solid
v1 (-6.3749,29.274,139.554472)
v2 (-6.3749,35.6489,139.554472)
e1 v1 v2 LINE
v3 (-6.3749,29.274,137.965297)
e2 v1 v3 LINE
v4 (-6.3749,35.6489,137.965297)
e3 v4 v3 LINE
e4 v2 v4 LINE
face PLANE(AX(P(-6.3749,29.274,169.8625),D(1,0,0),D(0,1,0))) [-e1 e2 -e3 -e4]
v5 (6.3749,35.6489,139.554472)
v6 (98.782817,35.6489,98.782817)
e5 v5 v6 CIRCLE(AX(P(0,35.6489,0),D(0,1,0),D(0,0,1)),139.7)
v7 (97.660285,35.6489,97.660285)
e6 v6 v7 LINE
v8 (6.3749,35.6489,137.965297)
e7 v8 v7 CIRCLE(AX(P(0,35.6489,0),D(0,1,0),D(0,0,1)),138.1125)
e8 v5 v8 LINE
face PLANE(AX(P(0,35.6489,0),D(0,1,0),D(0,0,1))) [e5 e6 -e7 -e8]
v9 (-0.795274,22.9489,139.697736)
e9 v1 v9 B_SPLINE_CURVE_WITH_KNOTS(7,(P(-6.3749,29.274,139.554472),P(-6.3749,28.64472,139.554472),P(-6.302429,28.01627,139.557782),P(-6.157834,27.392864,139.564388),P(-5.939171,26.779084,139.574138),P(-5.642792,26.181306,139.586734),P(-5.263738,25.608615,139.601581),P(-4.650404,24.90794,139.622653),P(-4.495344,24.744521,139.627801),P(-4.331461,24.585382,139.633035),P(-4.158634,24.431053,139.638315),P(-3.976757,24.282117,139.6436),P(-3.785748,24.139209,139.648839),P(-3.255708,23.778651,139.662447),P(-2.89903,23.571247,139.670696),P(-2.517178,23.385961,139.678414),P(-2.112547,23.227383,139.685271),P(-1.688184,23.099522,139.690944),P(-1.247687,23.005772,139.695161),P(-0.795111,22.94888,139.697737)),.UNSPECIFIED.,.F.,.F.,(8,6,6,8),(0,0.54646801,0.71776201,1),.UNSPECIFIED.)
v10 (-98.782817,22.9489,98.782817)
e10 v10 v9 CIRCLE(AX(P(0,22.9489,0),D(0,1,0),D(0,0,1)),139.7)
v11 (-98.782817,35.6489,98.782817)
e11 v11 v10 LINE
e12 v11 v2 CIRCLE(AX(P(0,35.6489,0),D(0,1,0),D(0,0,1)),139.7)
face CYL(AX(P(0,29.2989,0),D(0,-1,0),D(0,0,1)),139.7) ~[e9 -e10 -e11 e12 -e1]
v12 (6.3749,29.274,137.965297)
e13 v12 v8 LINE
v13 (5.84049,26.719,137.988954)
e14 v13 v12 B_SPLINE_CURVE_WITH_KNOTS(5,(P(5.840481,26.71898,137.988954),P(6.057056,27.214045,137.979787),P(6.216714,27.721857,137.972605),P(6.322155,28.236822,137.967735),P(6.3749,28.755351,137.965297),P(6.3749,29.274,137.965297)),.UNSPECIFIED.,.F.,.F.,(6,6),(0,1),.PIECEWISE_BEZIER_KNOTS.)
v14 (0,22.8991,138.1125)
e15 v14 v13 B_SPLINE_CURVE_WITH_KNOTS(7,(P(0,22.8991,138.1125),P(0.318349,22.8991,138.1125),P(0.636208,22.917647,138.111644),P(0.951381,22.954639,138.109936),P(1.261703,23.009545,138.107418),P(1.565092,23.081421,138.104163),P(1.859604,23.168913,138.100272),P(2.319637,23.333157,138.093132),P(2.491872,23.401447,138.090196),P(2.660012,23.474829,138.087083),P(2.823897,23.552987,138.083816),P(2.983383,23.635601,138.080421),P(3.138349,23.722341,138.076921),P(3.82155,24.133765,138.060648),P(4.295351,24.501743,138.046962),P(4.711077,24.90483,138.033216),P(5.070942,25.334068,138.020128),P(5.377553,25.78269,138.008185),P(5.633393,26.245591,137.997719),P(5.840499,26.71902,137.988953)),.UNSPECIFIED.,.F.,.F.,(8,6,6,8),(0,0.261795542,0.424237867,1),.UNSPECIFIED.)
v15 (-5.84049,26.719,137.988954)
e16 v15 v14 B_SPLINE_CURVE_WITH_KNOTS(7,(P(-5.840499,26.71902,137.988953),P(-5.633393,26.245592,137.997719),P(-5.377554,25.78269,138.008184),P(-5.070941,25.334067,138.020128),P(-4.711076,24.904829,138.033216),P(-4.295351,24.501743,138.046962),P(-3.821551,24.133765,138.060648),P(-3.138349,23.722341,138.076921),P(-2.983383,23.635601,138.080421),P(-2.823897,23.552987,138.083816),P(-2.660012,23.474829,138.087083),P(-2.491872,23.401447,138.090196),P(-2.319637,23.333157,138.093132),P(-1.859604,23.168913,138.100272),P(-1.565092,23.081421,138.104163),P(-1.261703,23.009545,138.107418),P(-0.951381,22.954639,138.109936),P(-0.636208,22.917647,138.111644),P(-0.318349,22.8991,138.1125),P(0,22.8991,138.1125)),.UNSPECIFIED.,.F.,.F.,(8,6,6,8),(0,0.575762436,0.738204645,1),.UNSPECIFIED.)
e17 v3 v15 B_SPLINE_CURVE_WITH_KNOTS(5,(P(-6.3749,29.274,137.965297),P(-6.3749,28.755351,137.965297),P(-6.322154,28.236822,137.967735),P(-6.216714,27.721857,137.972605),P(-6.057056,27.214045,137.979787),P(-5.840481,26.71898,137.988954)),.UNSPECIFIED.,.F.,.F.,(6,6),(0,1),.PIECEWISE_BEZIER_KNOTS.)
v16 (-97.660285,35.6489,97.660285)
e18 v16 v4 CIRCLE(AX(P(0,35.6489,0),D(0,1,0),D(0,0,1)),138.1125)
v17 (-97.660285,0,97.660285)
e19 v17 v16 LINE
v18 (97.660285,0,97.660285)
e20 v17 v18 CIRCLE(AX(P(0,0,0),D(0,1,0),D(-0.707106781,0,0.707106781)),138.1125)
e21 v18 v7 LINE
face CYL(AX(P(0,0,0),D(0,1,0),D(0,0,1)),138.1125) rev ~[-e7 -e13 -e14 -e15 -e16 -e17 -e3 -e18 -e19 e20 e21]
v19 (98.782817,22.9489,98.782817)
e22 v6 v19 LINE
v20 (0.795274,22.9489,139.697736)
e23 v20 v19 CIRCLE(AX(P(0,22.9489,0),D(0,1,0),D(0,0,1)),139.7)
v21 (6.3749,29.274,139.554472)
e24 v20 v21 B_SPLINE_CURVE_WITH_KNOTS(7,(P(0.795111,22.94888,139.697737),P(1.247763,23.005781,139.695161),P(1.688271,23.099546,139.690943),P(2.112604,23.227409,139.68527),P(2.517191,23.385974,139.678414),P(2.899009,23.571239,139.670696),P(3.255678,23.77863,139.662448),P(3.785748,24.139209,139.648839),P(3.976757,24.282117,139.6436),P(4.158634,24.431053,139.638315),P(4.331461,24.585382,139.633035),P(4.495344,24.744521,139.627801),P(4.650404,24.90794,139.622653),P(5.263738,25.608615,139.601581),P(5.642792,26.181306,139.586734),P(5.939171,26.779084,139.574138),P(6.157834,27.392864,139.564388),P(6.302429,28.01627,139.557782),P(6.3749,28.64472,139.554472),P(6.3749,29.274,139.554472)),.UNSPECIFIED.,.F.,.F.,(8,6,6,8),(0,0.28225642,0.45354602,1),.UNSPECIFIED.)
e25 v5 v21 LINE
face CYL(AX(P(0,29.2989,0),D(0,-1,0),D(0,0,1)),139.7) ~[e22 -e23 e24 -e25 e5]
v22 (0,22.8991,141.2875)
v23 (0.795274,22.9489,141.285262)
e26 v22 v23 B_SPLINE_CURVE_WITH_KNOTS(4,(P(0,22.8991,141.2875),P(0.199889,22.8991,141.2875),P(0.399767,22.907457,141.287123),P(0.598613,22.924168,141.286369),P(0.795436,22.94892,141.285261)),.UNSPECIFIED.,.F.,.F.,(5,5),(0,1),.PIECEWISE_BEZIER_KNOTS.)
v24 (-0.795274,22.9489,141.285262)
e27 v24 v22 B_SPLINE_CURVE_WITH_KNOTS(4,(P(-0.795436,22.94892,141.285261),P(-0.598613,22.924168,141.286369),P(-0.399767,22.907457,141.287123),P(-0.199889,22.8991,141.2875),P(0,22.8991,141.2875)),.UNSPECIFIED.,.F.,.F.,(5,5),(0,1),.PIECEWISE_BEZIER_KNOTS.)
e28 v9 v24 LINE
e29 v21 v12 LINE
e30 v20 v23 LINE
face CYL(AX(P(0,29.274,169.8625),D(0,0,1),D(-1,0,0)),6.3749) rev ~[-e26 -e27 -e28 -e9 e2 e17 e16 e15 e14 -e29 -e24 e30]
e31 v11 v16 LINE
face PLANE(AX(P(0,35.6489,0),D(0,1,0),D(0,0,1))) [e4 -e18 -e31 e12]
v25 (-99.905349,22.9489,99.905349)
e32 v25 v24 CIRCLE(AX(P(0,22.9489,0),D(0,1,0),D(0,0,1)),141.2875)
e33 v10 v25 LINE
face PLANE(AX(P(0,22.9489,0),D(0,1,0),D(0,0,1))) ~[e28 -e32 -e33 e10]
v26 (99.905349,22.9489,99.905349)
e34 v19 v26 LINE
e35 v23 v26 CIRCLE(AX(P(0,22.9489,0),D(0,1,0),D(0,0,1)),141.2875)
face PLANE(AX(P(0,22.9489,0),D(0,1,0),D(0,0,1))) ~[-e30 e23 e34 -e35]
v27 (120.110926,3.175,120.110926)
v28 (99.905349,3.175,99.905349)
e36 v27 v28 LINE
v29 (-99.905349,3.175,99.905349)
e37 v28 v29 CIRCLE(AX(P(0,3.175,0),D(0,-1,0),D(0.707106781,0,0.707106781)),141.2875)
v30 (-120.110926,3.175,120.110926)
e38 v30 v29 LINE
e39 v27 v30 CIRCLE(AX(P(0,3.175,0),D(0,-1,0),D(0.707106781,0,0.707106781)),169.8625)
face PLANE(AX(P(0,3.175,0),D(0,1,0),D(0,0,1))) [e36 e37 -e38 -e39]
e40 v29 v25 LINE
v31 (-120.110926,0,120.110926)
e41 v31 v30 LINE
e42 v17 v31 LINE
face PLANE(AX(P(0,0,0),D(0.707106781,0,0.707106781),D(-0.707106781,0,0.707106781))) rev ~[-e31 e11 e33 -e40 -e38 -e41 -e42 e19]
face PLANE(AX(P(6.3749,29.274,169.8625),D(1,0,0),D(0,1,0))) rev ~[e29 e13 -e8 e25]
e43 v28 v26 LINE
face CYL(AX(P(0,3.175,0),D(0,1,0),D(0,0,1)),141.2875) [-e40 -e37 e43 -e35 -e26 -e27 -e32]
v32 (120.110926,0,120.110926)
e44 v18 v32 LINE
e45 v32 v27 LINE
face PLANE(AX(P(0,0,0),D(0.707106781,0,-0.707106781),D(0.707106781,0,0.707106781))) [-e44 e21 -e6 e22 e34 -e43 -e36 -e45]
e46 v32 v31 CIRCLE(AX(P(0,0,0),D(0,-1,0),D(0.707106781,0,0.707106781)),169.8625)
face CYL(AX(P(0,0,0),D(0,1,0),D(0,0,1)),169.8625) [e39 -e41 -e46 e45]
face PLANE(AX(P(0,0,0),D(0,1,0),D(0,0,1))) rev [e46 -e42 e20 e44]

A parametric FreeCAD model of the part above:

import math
import FreeCAD as App
import Part
import Sketcher

V = App.Vector
Q = App.Units.Quantity

doc = App.newDocument("Part")
body = doc.addObject("PartDesign::Body", "Body")

# Sketch on YZ plane
sketch1 = body.newObject("Sketcher::SketchObject", "Sketch")
sketch1.AttachmentSupport = (doc.getObject("YZ_Plane"), [""])
sketch1.MapMode = "FlatFace"
sketch1.addGeometry(Part.LineSegment(V(0, 169.8625, 0), V(0, 138.1125, 0)), False)
sketch1.addGeometry(Part.LineSegment(V(0, 138.1125, 0), V(35.6489, 138.1125, 0)), False)
sketch1.addGeometry(Part.LineSegment(V(35.6489, 138.1125, 0), V(35.6489, 139.7, 0)), False)
sketch1.addGeometry(Part.LineSegment(V(35.6489, 139.7, 0), V(22.9489, 139.7, 0)), False)
sketch1.addGeometry(Part.LineSegment(V(22.9489, 139.7, 0), V(22.9489, 141.2875, 0)), False)
sketch1.addGeometry(Part.LineSegment(V(22.9489, 141.2875, 0), V(3.175, 141.2875, 0)), False)
sketch1.addGeometry(Part.LineSegment(V(3.175, 141.2875, 0), V(3.175, 169.8625, 0)), False)
sketch1.addGeometry(Part.LineSegment(V(3.175, 169.8625, 0), V(0, 169.8625, 0)), False)
sketch1.addConstraint(Sketcher.Constraint("Coincident", 0, 2, 1, 1))
sketch1.addConstraint(Sketcher.Constraint("Coincident", 1, 2, 2, 1))
sketch1.addConstraint(Sketcher.Constraint("Coincident", 2, 2, 3, 1))
sketch1.addConstraint(Sketcher.Constraint("Coincident", 3, 2, 4, 1))
sketch1.addConstraint(Sketcher.Constraint("Coincident", 4, 2, 5, 1))
sketch1.addConstraint(Sketcher.Constraint("Coincident", 5, 2, 6, 1))
sketch1.addConstraint(Sketcher.Constraint("Coincident", 6, 2, 7, 1))
sketch1.addConstraint(Sketcher.Constraint("Coincident", 7, 2, 0, 1))
sketch1.addConstraint(Sketcher.Constraint("Vertical", 0))
sketch1.addConstraint(Sketcher.Constraint("Horizontal", 1))
sketch1.addConstraint(Sketcher.Constraint("Vertical", 2))
sketch1.addConstraint(Sketcher.Constraint("Horizontal", 3))
sketch1.addConstraint(Sketcher.Constraint("Vertical", 4))
sketch1.addConstraint(Sketcher.Constraint("Horizontal", 5))
sketch1.addConstraint(Sketcher.Constraint("Vertical", 6))
sketch1.addConstraint(Sketcher.Constraint("Horizontal", 7))
sketch1.addConstraint(Sketcher.Constraint("PointOnObject", 0, 2, -2))
sketch1.addConstraint(Sketcher.Constraint("Equal", 2, 4))
sketch1.addConstraint(Sketcher.Constraint("DistanceY", 0, 2, 0, 1, Q("1.25 in")))
sketch1.addConstraint(Sketcher.Constraint("DistanceX", 7, 2, 7, 1, Q("0.125 in")))
sketch1.addConstraint(Sketcher.Constraint("DistanceY", 2, 1, 2, 2, Q("0.0625 in")))
sketch1.addConstraint(Sketcher.Constraint("DistanceX", 3, 2, 3, 1, Q("0.5 in")))
sketch1.addConstraint(Sketcher.Constraint("DistanceY", -1, 1, 0, 2, Q("5.4375 in")))
sketch1.addConstraint(Sketcher.Constraint("DistanceX", 1, 1, 1, 2, Q("1.4035 in")))
revolution = body.newObject("PartDesign::Revolution", "Revolution")
revolution.Profile = sketch1
revolution.ReferenceAxis = (sketch1, ["H_Axis"])
revolution.Angle = 360

# Sketch on XY plane
sketch2 = body.newObject("Sketcher::SketchObject", "Sketch001")
sketch2.AttachmentSupport = (doc.getObject("XY_Plane"), [""])
sketch2.MapMode = "FlatFace"
sketch2.AttachmentOffset = App.Placement(V(0, 0, 6.6875 * 25.4), App.Rotation())
sketch2.addGeometry(Part.LineSegment(V(-6.3749, 35.6489, 0), V(-6.3749, 29.274, 0)), False)
sketch2.addGeometry(Part.ArcOfCircle(Part.Circle(V(0, 29.274, 0), V(0, 0, 1), 6.3749), math.radians(180), math.radians(360)), False)
sketch2.addGeometry(Part.LineSegment(V(6.3749, 29.274, 0), V(6.3749, 35.6489, 0)), False)
sketch2.addGeometry(Part.LineSegment(V(6.3749, 35.6489, 0), V(-6.3749, 35.6489, 0)), False)
sketch2.addConstraint(Sketcher.Constraint("Tangent", 0, 2, 1, 1))
sketch2.addConstraint(Sketcher.Constraint("Tangent", 1, 2, 2, 1))
sketch2.addConstraint(Sketcher.Constraint("Coincident", 2, 2, 3, 1))
sketch2.addConstraint(Sketcher.Constraint("Coincident", 3, 2, 0, 1))
sketch2.addConstraint(Sketcher.Constraint("Vertical", 0))
sketch2.addConstraint(Sketcher.Constraint("Vertical", 2))
sketch2.addConstraint(Sketcher.Constraint("Horizontal", 3))
sketch2.addConstraint(Sketcher.Constraint("PointOnObject", 1, 3, -2))
sketch2.addConstraint(Sketcher.Constraint("Radius", 1, Q("6.375 mm")))
sketch2.addConstraint(Sketcher.Constraint("DistanceY", 0, 2, 0, 1, Q("6.375 mm")))
sketch2.addConstraint(Sketcher.Constraint("DistanceY", -1, 1, 2, 2, Q("1.4035 in")))
pocket1 = body.newObject("PartDesign::Pocket", "Pocket")
pocket1.Profile = sketch2
pocket1.Type = "ThroughAll"

# Sketch on XZ plane
sketch3 = body.newObject("Sketcher::SketchObject", "Sketch002")
sketch3.AttachmentSupport = (doc.getObject("XZ_Plane"), [""])
sketch3.MapMode = "FlatFace"
sketch3.addGeometry(Part.LineSegment(V(198.1259, 198.1259, 0), V(0, 0, 0)), False)
sketch3.addGeometry(Part.LineSegment(V(0, 0, 0), V(-198.1259, 198.1259, 0)), False)
sketch3.addGeometry(Part.LineSegment(V(-198.1259, 198.1259, 0), V(-198.1259, -227.7187, 0)), False)
sketch3.addGeometry(Part.LineSegment(V(-198.1259, -227.7187, 0), V(214.1573, -227.7187, 0)), False)
sketch3.addGeometry(Part.LineSegment(V(214.1573, -227.7187, 0), V(198.1259, 198.1259, 0)), False)
sketch3.addConstraint(Sketcher.Constraint("Coincident", 0, 2, 1, 1))
sketch3.addConstraint(Sketcher.Constraint("Coincident", 1, 2, 2, 1))
sketch3.addConstraint(Sketcher.Constraint("Coincident", 2, 2, 3, 1))
sketch3.addConstraint(Sketcher.Constraint("Coincident", 3, 2, 4, 1))
sketch3.addConstraint(Sketcher.Constraint("Coincident", 4, 2, 0, 1))
sketch3.addConstraint(Sketcher.Constraint("Vertical", 2))
sketch3.addConstraint(Sketcher.Constraint("Horizontal", 3))
sketch3.addConstraint(Sketcher.Constraint("Coincident", 0, 2, -1, 1))
sketch3.addConstraint(Sketcher.Constraint("Symmetric", 1, 2, 4, 2, -2))
sketch3.addConstraint(Sketcher.Constraint("Perpendicular", 0, 1))
sketch3.addConstraint(Sketcher.Constraint("Distance", 0, Q("11.0312 in")))
sketch3.addConstraint(Sketcher.Constraint("Distance", 4, Q("16.7774 in")))
sketch3.addConstraint(Sketcher.Constraint("DistanceX", 3, 1, 3, 2, Q("412.2832 mm")))
pocket2 = body.newObject("PartDesign::Pocket", "Pocket001")
pocket2.Profile = sketch3
pocket2.Type = "ThroughAll"

doc.recompute()
